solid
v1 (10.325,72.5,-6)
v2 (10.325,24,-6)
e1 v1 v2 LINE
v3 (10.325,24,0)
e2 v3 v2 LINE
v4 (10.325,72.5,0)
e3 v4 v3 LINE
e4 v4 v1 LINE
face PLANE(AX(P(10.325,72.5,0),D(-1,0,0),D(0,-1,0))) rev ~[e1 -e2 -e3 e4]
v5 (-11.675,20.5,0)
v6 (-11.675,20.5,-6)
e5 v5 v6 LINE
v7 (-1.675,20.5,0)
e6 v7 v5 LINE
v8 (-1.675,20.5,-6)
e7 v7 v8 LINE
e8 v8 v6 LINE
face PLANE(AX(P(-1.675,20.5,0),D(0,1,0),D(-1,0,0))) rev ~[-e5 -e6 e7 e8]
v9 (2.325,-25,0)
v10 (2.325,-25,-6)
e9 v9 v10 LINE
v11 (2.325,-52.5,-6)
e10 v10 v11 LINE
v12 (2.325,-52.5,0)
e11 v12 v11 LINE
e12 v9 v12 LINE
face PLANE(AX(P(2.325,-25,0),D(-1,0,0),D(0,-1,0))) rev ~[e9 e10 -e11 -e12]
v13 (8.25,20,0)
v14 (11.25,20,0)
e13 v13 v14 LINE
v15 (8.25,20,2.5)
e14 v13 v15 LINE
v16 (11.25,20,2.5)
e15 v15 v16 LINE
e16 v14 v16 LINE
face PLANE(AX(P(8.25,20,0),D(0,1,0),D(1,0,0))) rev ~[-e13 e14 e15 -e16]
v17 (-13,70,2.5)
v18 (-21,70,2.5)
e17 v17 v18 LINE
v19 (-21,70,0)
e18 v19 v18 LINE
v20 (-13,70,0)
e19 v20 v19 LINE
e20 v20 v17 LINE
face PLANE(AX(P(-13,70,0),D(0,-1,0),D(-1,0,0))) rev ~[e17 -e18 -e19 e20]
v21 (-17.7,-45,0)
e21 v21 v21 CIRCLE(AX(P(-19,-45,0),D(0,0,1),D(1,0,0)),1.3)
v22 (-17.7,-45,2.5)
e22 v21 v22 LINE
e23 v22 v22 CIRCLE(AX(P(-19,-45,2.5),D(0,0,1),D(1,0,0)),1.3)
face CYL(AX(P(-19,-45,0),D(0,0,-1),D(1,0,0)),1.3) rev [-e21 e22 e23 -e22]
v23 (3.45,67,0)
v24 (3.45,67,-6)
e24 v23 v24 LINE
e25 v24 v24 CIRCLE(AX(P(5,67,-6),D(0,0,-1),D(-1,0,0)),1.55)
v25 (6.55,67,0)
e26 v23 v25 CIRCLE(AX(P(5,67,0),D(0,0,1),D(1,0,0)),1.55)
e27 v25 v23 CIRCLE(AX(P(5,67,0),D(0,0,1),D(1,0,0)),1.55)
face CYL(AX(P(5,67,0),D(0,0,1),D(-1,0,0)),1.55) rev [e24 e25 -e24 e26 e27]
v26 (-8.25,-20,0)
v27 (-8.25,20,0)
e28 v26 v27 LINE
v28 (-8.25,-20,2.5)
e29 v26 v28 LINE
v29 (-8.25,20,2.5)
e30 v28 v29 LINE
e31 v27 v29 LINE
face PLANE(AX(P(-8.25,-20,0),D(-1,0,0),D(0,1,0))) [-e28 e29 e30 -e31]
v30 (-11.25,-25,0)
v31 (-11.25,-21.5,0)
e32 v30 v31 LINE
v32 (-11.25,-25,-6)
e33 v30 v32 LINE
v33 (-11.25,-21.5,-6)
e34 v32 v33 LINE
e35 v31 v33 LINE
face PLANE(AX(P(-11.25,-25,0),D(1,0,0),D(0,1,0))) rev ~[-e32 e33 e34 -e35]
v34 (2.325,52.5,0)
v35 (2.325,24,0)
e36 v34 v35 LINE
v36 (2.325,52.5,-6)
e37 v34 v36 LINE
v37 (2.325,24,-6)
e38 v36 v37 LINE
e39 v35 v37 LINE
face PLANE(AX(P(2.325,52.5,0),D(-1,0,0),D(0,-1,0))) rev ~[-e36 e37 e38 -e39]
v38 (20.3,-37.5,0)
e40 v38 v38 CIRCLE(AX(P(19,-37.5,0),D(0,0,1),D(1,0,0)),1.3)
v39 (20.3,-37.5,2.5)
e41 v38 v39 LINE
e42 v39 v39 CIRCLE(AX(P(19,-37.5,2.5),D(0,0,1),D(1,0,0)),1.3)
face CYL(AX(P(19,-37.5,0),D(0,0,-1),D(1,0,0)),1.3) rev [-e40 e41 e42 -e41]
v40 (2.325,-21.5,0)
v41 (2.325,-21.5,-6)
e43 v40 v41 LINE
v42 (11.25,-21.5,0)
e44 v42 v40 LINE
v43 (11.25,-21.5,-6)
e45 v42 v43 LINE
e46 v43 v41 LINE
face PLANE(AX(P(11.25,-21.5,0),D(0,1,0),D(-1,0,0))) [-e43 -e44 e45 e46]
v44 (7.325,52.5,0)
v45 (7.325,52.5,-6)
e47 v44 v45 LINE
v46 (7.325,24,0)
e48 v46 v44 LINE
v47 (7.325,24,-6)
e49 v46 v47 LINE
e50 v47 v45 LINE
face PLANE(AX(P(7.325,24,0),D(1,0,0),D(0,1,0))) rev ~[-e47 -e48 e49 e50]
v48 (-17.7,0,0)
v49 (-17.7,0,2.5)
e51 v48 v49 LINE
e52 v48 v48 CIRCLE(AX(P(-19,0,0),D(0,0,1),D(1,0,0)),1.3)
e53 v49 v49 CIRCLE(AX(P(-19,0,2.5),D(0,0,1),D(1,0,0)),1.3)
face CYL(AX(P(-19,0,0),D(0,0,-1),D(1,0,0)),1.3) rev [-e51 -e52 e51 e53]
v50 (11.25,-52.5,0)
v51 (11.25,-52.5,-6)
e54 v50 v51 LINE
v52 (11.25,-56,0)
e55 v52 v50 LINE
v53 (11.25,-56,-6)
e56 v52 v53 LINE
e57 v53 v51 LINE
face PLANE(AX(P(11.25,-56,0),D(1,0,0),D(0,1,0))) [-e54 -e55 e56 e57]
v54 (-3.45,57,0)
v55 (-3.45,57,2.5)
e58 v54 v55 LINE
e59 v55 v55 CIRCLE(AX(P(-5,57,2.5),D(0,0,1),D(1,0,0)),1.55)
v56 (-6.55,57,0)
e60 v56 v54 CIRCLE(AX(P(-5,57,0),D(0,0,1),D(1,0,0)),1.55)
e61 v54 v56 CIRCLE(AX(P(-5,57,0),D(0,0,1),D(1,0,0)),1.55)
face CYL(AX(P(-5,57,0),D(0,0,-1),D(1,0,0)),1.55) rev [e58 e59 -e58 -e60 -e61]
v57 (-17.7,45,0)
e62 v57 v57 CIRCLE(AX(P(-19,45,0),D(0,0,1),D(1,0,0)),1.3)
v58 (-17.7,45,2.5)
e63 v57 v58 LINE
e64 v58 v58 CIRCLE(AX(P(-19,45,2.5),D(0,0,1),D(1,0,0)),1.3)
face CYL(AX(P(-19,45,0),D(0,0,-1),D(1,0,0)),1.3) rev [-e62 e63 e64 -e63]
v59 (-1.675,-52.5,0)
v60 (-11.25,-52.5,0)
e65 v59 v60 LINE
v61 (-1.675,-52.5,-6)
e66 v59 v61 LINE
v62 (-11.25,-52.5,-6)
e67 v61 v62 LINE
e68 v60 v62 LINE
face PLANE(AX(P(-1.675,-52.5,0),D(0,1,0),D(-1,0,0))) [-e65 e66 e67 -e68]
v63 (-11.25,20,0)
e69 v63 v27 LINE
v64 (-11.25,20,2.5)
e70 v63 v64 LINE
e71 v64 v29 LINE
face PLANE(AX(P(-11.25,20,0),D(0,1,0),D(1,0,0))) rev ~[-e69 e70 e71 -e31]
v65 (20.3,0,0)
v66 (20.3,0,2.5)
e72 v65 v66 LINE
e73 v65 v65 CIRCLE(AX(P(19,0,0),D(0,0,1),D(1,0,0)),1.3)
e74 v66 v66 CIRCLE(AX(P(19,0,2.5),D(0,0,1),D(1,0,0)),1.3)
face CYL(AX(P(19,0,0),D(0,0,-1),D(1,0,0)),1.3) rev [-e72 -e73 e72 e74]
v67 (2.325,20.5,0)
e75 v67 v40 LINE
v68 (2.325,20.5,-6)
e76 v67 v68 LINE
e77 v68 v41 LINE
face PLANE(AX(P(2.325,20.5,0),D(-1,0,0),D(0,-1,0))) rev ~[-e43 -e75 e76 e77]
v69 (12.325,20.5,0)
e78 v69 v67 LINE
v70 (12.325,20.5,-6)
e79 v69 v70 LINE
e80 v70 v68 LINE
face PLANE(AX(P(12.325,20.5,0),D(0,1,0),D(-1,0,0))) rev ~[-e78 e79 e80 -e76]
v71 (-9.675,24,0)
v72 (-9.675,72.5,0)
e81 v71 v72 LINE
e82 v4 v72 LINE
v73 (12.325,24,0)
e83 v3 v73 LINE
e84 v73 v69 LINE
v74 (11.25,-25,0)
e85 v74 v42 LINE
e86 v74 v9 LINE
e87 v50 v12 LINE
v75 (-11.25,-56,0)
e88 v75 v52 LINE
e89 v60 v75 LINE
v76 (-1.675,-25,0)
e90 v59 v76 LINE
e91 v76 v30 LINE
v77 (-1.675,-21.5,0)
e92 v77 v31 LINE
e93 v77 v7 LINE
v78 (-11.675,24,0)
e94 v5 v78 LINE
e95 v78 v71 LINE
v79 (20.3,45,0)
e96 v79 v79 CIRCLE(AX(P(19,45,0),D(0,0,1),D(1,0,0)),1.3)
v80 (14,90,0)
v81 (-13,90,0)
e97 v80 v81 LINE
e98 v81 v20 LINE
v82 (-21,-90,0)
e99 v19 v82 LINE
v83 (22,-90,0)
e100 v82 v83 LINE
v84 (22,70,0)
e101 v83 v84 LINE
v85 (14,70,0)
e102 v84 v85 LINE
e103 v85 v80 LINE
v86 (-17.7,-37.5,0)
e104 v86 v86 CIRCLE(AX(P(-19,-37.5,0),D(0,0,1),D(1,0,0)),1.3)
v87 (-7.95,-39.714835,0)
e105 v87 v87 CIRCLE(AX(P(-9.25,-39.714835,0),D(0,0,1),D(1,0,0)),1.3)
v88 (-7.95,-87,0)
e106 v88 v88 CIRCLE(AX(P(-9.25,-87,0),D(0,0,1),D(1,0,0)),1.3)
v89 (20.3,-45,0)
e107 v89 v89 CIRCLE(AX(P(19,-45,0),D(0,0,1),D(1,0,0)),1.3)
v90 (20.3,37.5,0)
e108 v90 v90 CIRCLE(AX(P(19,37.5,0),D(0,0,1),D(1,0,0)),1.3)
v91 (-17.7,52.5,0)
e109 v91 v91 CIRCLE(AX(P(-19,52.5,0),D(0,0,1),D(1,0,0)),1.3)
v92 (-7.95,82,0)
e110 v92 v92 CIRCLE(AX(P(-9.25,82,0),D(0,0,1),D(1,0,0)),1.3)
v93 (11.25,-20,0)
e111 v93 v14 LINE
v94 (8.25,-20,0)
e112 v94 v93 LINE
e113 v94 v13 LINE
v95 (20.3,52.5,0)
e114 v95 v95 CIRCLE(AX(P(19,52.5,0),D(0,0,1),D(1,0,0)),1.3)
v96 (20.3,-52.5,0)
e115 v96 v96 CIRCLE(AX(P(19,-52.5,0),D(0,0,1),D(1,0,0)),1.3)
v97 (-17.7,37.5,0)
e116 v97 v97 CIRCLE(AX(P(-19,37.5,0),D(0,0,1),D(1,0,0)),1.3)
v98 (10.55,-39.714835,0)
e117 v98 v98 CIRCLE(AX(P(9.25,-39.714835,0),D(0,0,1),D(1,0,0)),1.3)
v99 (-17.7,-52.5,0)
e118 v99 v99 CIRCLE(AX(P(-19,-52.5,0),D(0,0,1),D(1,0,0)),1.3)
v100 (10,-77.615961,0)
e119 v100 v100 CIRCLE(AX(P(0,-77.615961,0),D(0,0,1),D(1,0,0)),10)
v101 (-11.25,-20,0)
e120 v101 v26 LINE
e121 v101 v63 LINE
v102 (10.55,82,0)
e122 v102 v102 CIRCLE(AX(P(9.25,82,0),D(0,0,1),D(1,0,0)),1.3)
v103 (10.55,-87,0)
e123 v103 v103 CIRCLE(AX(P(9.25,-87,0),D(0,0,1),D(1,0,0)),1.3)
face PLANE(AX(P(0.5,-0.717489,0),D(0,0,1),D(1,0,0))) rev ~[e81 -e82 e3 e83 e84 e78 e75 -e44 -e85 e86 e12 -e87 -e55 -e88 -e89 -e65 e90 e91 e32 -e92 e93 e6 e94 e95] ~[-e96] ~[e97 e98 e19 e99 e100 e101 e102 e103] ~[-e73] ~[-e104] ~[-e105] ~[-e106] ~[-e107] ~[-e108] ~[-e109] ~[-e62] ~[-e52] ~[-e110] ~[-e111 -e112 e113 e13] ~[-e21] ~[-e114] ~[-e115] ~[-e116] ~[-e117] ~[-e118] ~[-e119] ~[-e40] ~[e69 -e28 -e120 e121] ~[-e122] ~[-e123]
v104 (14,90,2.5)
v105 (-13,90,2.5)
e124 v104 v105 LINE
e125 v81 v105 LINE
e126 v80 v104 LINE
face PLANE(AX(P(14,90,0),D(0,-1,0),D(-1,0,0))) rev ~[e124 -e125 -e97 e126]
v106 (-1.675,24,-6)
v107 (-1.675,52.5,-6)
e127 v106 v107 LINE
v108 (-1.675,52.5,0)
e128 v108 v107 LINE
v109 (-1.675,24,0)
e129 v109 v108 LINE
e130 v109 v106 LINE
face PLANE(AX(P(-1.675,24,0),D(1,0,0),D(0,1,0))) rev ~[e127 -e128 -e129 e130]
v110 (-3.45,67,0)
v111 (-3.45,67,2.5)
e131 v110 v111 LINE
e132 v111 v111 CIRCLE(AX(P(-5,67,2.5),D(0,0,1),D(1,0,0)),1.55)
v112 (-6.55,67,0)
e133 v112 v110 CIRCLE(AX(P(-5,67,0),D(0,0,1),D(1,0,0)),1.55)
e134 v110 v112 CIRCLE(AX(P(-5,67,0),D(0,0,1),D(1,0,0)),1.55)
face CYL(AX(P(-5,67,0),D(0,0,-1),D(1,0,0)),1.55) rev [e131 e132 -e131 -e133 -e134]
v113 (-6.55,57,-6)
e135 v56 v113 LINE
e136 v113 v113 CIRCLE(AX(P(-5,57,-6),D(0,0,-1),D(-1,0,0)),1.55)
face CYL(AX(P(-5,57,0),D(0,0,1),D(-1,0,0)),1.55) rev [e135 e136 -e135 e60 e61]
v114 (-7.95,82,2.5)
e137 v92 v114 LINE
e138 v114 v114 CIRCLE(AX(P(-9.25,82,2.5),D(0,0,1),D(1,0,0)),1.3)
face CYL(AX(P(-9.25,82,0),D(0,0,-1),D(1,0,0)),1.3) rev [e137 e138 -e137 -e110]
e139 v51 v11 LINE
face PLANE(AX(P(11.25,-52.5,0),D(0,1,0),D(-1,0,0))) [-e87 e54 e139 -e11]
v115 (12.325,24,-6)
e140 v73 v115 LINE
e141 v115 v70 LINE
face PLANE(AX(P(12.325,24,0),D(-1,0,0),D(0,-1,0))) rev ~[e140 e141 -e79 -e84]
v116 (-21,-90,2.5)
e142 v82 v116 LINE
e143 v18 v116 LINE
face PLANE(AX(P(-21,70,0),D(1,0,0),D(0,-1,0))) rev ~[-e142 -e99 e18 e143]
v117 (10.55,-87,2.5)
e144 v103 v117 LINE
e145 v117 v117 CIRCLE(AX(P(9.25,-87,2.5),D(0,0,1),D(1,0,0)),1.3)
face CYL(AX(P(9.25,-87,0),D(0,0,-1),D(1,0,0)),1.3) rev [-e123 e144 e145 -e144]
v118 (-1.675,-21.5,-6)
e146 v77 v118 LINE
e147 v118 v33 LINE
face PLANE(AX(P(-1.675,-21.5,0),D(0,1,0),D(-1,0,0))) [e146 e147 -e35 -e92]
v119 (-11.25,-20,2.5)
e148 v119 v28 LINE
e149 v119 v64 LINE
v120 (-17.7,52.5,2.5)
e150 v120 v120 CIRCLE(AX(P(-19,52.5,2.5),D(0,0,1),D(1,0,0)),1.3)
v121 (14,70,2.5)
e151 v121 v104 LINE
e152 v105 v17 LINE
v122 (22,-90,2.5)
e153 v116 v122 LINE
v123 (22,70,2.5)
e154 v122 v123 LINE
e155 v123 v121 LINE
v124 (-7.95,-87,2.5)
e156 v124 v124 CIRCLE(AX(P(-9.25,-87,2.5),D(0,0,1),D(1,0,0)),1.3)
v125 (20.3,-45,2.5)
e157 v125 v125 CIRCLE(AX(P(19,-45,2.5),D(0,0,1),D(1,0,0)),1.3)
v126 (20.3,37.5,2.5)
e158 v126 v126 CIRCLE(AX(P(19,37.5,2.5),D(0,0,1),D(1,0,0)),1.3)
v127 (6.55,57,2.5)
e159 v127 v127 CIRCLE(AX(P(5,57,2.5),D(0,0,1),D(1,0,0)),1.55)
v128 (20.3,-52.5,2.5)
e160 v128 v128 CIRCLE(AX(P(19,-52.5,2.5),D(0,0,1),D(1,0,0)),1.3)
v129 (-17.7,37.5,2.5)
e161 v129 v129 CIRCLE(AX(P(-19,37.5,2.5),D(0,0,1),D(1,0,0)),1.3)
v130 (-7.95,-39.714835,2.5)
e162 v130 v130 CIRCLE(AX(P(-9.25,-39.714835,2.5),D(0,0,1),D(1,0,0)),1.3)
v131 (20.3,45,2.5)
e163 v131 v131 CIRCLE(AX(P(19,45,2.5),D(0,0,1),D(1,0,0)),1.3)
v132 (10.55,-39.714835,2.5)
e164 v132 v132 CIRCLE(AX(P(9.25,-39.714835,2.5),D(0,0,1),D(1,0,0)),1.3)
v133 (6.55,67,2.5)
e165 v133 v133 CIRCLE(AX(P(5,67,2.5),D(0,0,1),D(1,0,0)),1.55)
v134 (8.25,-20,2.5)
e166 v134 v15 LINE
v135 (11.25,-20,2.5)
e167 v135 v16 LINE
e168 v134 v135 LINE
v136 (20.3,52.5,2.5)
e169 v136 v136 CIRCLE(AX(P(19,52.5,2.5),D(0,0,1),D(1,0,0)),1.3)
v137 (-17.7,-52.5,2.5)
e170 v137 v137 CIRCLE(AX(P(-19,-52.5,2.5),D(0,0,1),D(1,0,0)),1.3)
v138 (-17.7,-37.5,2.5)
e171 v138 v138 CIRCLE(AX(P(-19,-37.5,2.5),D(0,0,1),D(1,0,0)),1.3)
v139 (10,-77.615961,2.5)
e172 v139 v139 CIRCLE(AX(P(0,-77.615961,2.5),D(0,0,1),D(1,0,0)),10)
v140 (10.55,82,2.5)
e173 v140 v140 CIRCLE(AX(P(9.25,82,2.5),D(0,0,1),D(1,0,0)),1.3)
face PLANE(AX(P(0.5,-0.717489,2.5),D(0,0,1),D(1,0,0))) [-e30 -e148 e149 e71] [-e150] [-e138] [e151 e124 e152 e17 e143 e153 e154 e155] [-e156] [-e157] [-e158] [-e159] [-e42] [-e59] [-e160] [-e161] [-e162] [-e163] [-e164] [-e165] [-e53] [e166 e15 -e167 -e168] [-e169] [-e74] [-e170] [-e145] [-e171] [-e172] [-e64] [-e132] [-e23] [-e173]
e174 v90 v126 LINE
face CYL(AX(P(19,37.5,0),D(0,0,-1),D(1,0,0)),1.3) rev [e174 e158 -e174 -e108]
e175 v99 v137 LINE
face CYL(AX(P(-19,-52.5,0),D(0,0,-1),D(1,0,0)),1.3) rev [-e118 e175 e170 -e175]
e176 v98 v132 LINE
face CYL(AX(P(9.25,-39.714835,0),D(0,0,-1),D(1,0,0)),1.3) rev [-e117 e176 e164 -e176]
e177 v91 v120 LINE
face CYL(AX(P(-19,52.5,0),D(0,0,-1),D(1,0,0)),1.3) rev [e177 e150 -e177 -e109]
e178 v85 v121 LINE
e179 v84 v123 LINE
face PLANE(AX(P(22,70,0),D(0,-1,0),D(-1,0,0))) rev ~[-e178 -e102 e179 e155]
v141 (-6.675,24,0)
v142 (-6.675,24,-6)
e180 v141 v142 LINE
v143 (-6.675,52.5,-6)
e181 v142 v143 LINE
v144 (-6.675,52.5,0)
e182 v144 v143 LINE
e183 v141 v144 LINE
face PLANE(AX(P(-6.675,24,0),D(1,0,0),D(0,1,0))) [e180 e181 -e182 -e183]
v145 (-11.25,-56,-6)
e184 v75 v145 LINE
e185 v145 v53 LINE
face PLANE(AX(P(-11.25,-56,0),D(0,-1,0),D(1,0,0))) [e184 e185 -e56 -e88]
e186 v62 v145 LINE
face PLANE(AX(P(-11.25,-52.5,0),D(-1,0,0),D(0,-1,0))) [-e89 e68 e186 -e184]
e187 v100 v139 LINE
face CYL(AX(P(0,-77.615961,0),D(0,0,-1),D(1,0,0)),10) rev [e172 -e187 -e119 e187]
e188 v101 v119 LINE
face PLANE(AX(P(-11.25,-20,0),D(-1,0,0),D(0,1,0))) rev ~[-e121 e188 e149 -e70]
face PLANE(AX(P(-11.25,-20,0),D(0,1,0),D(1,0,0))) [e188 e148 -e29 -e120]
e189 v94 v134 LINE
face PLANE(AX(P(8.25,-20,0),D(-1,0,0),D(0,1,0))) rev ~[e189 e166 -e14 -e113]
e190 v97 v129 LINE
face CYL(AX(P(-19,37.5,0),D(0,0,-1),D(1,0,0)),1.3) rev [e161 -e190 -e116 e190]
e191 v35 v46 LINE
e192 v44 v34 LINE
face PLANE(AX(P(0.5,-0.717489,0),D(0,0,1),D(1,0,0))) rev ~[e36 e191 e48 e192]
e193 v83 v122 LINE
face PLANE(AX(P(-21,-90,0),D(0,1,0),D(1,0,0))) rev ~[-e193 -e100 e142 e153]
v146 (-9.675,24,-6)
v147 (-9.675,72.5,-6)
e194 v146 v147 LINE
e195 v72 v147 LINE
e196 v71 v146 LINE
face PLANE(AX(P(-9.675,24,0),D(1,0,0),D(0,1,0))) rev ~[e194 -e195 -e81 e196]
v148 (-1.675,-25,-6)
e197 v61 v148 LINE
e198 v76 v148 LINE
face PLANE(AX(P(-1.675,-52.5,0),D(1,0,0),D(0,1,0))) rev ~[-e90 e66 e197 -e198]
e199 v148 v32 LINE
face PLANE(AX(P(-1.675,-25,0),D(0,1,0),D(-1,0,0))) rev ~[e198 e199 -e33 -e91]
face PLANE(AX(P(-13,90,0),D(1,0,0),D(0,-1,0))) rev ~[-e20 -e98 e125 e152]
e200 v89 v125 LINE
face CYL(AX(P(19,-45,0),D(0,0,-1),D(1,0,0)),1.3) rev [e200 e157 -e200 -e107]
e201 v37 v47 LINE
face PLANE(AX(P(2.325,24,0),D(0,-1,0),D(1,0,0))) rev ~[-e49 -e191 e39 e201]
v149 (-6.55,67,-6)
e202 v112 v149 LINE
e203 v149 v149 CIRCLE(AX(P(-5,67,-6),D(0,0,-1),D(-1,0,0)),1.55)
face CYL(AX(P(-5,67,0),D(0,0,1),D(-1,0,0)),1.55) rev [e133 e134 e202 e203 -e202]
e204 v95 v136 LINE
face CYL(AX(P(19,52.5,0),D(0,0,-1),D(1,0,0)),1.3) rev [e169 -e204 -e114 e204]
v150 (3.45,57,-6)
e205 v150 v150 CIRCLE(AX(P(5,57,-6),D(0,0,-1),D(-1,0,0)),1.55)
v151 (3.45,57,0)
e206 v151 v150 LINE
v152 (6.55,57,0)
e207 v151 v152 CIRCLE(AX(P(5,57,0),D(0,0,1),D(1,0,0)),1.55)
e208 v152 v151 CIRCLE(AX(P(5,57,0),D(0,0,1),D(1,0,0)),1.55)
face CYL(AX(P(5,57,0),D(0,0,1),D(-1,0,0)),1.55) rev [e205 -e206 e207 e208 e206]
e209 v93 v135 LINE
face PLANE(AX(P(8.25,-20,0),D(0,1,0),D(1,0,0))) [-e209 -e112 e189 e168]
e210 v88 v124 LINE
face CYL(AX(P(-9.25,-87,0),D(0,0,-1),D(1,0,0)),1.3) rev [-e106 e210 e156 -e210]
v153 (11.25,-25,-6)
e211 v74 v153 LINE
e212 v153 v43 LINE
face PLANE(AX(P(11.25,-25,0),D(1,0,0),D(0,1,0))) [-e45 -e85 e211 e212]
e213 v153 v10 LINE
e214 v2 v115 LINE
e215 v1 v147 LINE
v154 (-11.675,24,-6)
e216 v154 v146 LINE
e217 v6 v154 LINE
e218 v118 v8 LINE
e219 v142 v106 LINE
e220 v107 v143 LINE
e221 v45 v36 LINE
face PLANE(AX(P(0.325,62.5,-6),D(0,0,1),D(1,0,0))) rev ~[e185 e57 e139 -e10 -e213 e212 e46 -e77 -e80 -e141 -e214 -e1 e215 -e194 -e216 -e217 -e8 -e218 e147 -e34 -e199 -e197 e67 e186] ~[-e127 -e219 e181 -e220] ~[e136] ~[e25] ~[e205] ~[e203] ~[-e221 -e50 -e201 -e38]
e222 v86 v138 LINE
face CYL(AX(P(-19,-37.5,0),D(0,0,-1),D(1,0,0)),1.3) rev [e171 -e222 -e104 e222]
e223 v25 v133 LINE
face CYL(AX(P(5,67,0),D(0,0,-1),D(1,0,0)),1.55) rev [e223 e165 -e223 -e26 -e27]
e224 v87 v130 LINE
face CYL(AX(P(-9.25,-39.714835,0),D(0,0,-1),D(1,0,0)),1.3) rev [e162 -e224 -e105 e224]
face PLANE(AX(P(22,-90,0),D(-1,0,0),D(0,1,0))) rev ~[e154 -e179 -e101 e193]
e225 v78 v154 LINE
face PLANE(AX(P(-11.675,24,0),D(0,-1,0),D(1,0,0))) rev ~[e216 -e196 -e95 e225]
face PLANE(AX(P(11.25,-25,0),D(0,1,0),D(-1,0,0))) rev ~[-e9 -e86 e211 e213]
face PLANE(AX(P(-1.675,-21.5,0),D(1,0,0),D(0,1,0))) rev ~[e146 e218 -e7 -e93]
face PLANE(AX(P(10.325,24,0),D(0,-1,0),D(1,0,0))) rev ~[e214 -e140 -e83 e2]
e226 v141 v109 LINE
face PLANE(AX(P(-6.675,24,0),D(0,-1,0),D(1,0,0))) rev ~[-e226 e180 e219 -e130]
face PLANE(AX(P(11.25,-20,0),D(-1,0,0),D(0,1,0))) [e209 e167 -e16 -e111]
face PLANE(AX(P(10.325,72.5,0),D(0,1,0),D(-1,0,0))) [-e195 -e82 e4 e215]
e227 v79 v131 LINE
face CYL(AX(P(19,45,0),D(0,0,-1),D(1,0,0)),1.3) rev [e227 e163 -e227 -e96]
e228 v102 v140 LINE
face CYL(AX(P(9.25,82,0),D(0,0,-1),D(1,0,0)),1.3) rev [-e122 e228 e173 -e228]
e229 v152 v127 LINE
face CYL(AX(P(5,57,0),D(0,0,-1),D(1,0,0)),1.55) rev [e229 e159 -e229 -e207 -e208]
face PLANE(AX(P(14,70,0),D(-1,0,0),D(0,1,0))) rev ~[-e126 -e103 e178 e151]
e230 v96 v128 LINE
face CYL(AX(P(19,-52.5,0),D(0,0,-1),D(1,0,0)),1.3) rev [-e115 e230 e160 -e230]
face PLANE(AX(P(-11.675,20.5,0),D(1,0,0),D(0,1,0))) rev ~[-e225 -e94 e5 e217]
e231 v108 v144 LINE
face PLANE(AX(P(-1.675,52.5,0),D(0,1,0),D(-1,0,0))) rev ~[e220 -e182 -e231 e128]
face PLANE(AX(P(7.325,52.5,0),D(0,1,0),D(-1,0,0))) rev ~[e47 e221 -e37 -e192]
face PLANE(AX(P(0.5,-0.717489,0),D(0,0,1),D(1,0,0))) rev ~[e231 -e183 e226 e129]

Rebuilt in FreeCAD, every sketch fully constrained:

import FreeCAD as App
import Part
import Sketcher
Q = App.Units.Quantity

doc = App.newDocument("Part")
body = doc.addObject("PartDesign::Body", "Body")

# Sketch on XY plane
sketch1 = body.newObject("Sketcher::SketchObject", "Sketch")
sketch1.AttachmentSupport = (doc.getObject("XY_Plane"), [""])
sketch1.MapMode = "FlatFace"
sketch1.addGeometry(Part.LineSegment(App.Vector(22, -90, 0), App.Vector(22, 70, 0)), False)
sketch1.addGeometry(Part.LineSegment(App.Vector(22, 70, 0), App.Vector(14, 70, 0)), False)
sketch1.addGeometry(Part.LineSegment(App.Vector(14, 70, 0), App.Vector(14, 90, 0)), False)
sketch1.addGeometry(Part.LineSegment(App.Vector(14, 90, 0), App.Vector(-13, 90, 0)), False)
sketch1.addGeometry(Part.LineSegment(App.Vector(-13, 90, 0), App.Vector(-13, 70, 0)), False)
sketch1.addGeometry(Part.LineSegment(App.Vector(-13, 70, 0), App.Vector(-21, 70, 0)), False)
sketch1.addGeometry(Part.LineSegment(App.Vector(-21, 70, 0), App.Vector(-21, -90, 0)), False)
sketch1.addGeometry(Part.LineSegment(App.Vector(-21, -90, 0), App.Vector(22, -90, 0)), False)
sketch1.addGeometry(Part.Circle(App.Vector(-19, -52.5, 0), App.Vector(0, 0, 1), 1.3), False)
sketch1.addGeometry(Part.Circle(App.Vector(-9.2, -87, 0), App.Vector(0, 0, 1), 1.3), False)
sketch1.addGeometry(Part.Circle(App.Vector(0, -77.6, 0), App.Vector(0, 0, 1), 10), False)
sketch1.addGeometry(Part.Circle(App.Vector(-19, -45, 0), App.Vector(0, 0, 1), 1.3), False)
sketch1.addGeometry(Part.Circle(App.Vector(-19, -37.5, 0), App.Vector(0, 0, 1), 1.3), False)
sketch1.addGeometry(Part.Circle(App.Vector(-9.2, -39.7, 0), App.Vector(0, 0, 1), 1.3), False)
sketch1.addGeometry(Part.Circle(App.Vector(9.2, -87, 0), App.Vector(0, 0, 1), 1.3), False)
sketch1.addGeometry(Part.Circle(App.Vector(19, -52.5, 0), App.Vector(0, 0, 1), 1.3), False)
sketch1.addGeometry(Part.Circle(App.Vector(9.2, -39.7, 0), App.Vector(0, 0, 1), 1.3), False)
sketch1.addGeometry(Part.Circle(App.Vector(19, -45, 0), App.Vector(0, 0, 1), 1.3), False)
sketch1.addGeometry(Part.Circle(App.Vector(19, -37.5, 0), App.Vector(0, 0, 1), 1.3), False)
sketch1.addGeometry(Part.Circle(App.Vector(-19, 0, 0), App.Vector(0, 0, 1), 1.3), False)
sketch1.addGeometry(Part.Circle(App.Vector(-19, 37.5, 0), App.Vector(0, 0, 1), 1.3), False)
sketch1.addGeometry(Part.LineSegment(App.Vector(-8.2, -20, 0), App.Vector(-11.2, -20, 0)), False)
sketch1.addGeometry(Part.LineSegment(App.Vector(-11.2, -20, 0), App.Vector(-11.2, 20, 0)), False)
sketch1.addGeometry(Part.LineSegment(App.Vector(-11.2, 20, 0), App.Vector(-8.2, 20, 0)), False)
sketch1.addGeometry(Part.LineSegment(App.Vector(-8.2, 20, 0), App.Vector(-8.2, -20, 0)), False)
sketch1.addGeometry(Part.Circle(App.Vector(-19, 45, 0), App.Vector(0, 0, 1), 1.3), False)
sketch1.addGeometry(Part.Circle(App.Vector(-19, 52.5, 0), App.Vector(0, 0, 1), 1.3), False)
sketch1.addGeometry(Part.Circle(App.Vector(-5, 57, 0), App.Vector(0, 0, 1), 1.6), False)
sketch1.addGeometry(Part.Circle(App.Vector(-9.2, 82, 0), App.Vector(0, 0, 1), 1.3), False)
sketch1.addGeometry(Part.Circle(App.Vector(-5, 67, 0), App.Vector(0, 0, 1), 1.6), False)
sketch1.addGeometry(Part.LineSegment(App.Vector(11.2, -20, 0), App.Vector(8.2, -20, 0)), False)
sketch1.addGeometry(Part.LineSegment(App.Vector(8.2, -20, 0), App.Vector(8.2, 20, 0)), False)
sketch1.addGeometry(Part.LineSegment(App.Vector(8.2, 20, 0), App.Vector(11.2, 20, 0)), False)
sketch1.addGeometry(Part.LineSegment(App.Vector(11.2, 20, 0), App.Vector(11.2, -20, 0)), False)
sketch1.addGeometry(Part.Circle(App.Vector(19, 0, 0), App.Vector(0, 0, 1), 1.3), False)
sketch1.addGeometry(Part.Circle(App.Vector(19, 37.5, 0), App.Vector(0, 0, 1), 1.3), False)
sketch1.addGeometry(Part.Circle(App.Vector(5, 57, 0), App.Vector(0, 0, 1), 1.6), False)
sketch1.addGeometry(Part.Circle(App.Vector(5, 67, 0), App.Vector(0, 0, 1), 1.6), False)
sketch1.addGeometry(Part.Circle(App.Vector(9.2, 82, 0), App.Vector(0, 0, 1), 1.3), False)
sketch1.addGeometry(Part.Circle(App.Vector(19, 45, 0), App.Vector(0, 0, 1), 1.3), False)
sketch1.addGeometry(Part.Circle(App.Vector(19, 52.5, 0), App.Vector(0, 0, 1), 1.3), False)
sketch1.addConstraint(Sketcher.Constraint("Coincident", 0, 2, 1, 1))
sketch1.addConstraint(Sketcher.Constraint("Coincident", 1, 2, 2, 1))
sketch1.addConstraint(Sketcher.Constraint("Coincident", 2, 2, 3, 1))
sketch1.addConstraint(Sketcher.Constraint("Coincident", 3, 2, 4, 1))
sketch1.addConstraint(Sketcher.Constraint("Coincident", 4, 2, 5, 1))
sketch1.addConstraint(Sketcher.Constraint("Coincident", 5, 2, 6, 1))
sketch1.addConstraint(Sketcher.Constraint("Coincident", 6, 2, 7, 1))
sketch1.addConstraint(Sketcher.Constraint("Coincident", 7, 2, 0, 1))
sketch1.addConstraint(Sketcher.Constraint("Coincident", 21, 2, 22, 1))
sketch1.addConstraint(Sketcher.Constraint("Coincident", 22, 2, 23, 1))
sketch1.addConstraint(Sketcher.Constraint("Coincident", 23, 2, 24, 1))
sketch1.addConstraint(Sketcher.Constraint("Coincident", 24, 2, 21, 1))
sketch1.addConstraint(Sketcher.Constraint("Coincident", 30, 2, 31, 1))
sketch1.addConstraint(Sketcher.Constraint("Coincident", 31, 2, 32, 1))
sketch1.addConstraint(Sketcher.Constraint("Coincident", 32, 2, 33, 1))
sketch1.addConstraint(Sketcher.Constraint("Coincident", 33, 2, 30, 1))
sketch1.addConstraint(Sketcher.Constraint("Vertical", 0))
sketch1.addConstraint(Sketcher.Constraint("Horizontal", 1))
sketch1.addConstraint(Sketcher.Constraint("Vertical", 2))
sketch1.addConstraint(Sketcher.Constraint("Horizontal", 3))
sketch1.addConstraint(Sketcher.Constraint("Vertical", 4))
sketch1.addConstraint(Sketcher.Constraint("Horizontal", 5))
sketch1.addConstraint(Sketcher.Constraint("Vertical", 6))
sketch1.addConstraint(Sketcher.Constraint("Horizontal", 7))
sketch1.addConstraint(Sketcher.Constraint("Horizontal", 21))
sketch1.addConstraint(Sketcher.Constraint("Vertical", 22))
sketch1.addConstraint(Sketcher.Constraint("Horizontal", 23))
sketch1.addConstraint(Sketcher.Constraint("Vertical", 24))
sketch1.addConstraint(Sketcher.Constraint("Horizontal", 30))
sketch1.addConstraint(Sketcher.Constraint("Vertical", 31))
sketch1.addConstraint(Sketcher.Constraint("Horizontal", 32))
sketch1.addConstraint(Sketcher.Constraint("Vertical", 33))
sketch1.addConstraint(Sketcher.Constraint("Equal", 8, 9))
sketch1.addConstraint(Sketcher.Constraint("Equal", 9, 11))
sketch1.addConstraint(Sketcher.Constraint("Equal", 11, 12))
sketch1.addConstraint(Sketcher.Constraint("Equal", 12, 13))
sketch1.addConstraint(Sketcher.Constraint("Equal", 13, 14))
sketch1.addConstraint(Sketcher.Constraint("Equal", 14, 15))
sketch1.addConstraint(Sketcher.Constraint("Equal", 15, 16))
sketch1.addConstraint(Sketcher.Constraint("Equal", 16, 17))
sketch1.addConstraint(Sketcher.Constraint("Equal", 17, 18))
sketch1.addConstraint(Sketcher.Constraint("Equal", 18, 19))
sketch1.addConstraint(Sketcher.Constraint("Equal", 19, 20))
sketch1.addConstraint(Sketcher.Constraint("Equal", 20, 25))
sketch1.addConstraint(Sketcher.Constraint("Equal", 25, 26))
sketch1.addConstraint(Sketcher.Constraint("Equal", 26, 28))
sketch1.addConstraint(Sketcher.Constraint("Equal", 27, 29))
sketch1.addConstraint(Sketcher.Constraint("Equal", 28, 34))
sketch1.addConstraint(Sketcher.Constraint("Equal", 34, 35))
sketch1.addConstraint(Sketcher.Constraint("Equal", 29, 36))
sketch1.addConstraint(Sketcher.Constraint("Equal", 36, 37))
sketch1.addConstraint(Sketcher.Constraint("Equal", 35, 38))
sketch1.addConstraint(Sketcher.Constraint("Equal", 38, 39))
sketch1.addConstraint(Sketcher.Constraint("Equal", 39, 40))
sketch1.addConstraint(Sketcher.Constraint("Symmetric", 18, 3, 20, 3, -1, 1))
sketch1.addConstraint(Sketcher.Constraint("Symmetric", 17, 3, 25, 3, -1, 1))
sketch1.addConstraint(Sketcher.Constraint("Symmetric", 15, 3, 26, 3, -1, 1))
sketch1.addConstraint(Sketcher.Constraint("Symmetric", 19, 3, 34, 3, -1, 1))
sketch1.addConstraint(Sketcher.Constraint("Symmetric", 12, 3, 35, 3, -1, 1))
sketch1.addConstraint(Sketcher.Constraint("Symmetric", 11, 3, 39, 3, -1, 1))
sketch1.addConstraint(Sketcher.Constraint("Symmetric", 8, 3, 40, 3, -1, 1))
sketch1.addConstraint(Sketcher.Constraint("Symmetric", 23, 2, 30, 2, -1, 1))
sketch1.addConstraint(Sketcher.Constraint("Symmetric", 21, 2, 32, 2, -1, 1))
sketch1.addConstraint(Sketcher.Constraint("Symmetric", 9, 3, 14, 3, -2))
sketch1.addConstraint(Sketcher.Constraint("Symmetric", 8, 3, 15, 3, -2))
sketch1.addConstraint(Sketcher.Constraint("Symmetric", 13, 3, 16, 3, -2))
sketch1.addConstraint(Sketcher.Constraint("Symmetric", 11, 3, 17, 3, -2))
sketch1.addConstraint(Sketcher.Constraint("Symmetric", 12, 3, 18, 3, -2))
sketch1.addConstraint(Sketcher.Constraint("Symmetric", 27, 3, 36, 3, -2))
sketch1.addConstraint(Sketcher.Constraint("Symmetric", 29, 3, 37, 3, -2))
sketch1.addConstraint(Sketcher.Constraint("Symmetric", 28, 3, 38, 3, -2))
sketch1.addConstraint(Sketcher.Constraint("PointOnObject", 10, 3, -2))
sketch1.addConstraint(Sketcher.Constraint("PointOnObject", 19, 3, -1))
sketch1.addConstraint(Sketcher.Constraint("Horizontal", 1, 2, 4, 2))
sketch1.addConstraint(Sketcher.Constraint("Horizontal", 24, 2, 30, 2))
sketch1.addConstraint(Sketcher.Constraint("Vertical", 8, 3, 11, 3))
sketch1.addConstraint(Sketcher.Constraint("Vertical", 11, 3, 12, 3))
sketch1.addConstraint(Sketcher.Constraint("Vertical", 9, 3, 13, 3))
sketch1.addConstraint(Sketcher.Constraint("Vertical", 12, 3, 19, 3))
sketch1.addConstraint(Sketcher.Constraint("Vertical", 13, 3, 28, 3))
sketch1.addConstraint(Sketcher.Constraint("Vertical", 27, 3, 29, 3))
sketch1.addConstraint(Sketcher.Constraint("Equal", 1, 5))
sketch1.addConstraint(Sketcher.Constraint("Diameter", 10, Q("20 mm")))
sketch1.addConstraint(Sketcher.Constraint("Diameter", 8, Q("2.6 mm")))
sketch1.addConstraint(Sketcher.Constraint("Diameter", 27, Q("3.1 mm")))
sketch1.addConstraint(Sketcher.Constraint("DistanceX", 1, 2, 1, 1, Q("8 mm")))
sketch1.addConstraint(Sketcher.Constraint("DistanceX", 3, 2, 3, 1, Q("27 mm")))
sketch1.addConstraint(Sketcher.Constraint("DistanceX", 21, 2, 21, 1, Q("3 mm")))
sketch1.addConstraint(Sketcher.Constraint("DistanceY", 0, 1, 0, 2, Q("160 mm")))
sketch1.addConstraint(Sketcher.Constraint("DistanceY", 2, 1, 2, 2, Q("20 mm")))
sketch1.addConstraint(Sketcher.Constraint("DistanceY", 22, 1, 22, 2, Q("40 mm")))
sketch1.addConstraint(Sketcher.Constraint("DistanceX", 8, 3, -1, 1, Q("19 mm")))
sketch1.addConstraint(Sketcher.Constraint("DistanceY", 9, 3, -1, 1, Q("87 mm")))
sketch1.addConstraint(Sketcher.Constraint("DistanceY", 11, 3, -1, 1, Q("45 mm")))
sketch1.addConstraint(Sketcher.Constraint("DistanceX", 27, 3, -1, 1, Q("5 mm")))
sketch1.addConstraint(Sketcher.Constraint("DistanceY", -1, 1, 27, 3, Q("57 mm")))
sketch1.addConstraint(Sketcher.Constraint("DistanceY", -1, 1, 28, 3, Q("82 mm")))
sketch1.addConstraint(Sketcher.Constraint("DistanceY", -1, 1, 29, 3, Q("67 mm")))
sketch1.addConstraint(Sketcher.Constraint("DistanceX", -1, 1, 0, 2, Q("22 mm")))
sketch1.addConstraint(Sketcher.Constraint("DistanceY", -1, 1, 0, 2, Q("70 mm")))
sketch1.addConstraint(Sketcher.Constraint("DistanceY", 8, 3, 12, 3, Q("15 mm")))
sketch1.addConstraint(Sketcher.Constraint("DistanceY", 12, 3, 20, 3, Q("75 mm")))
sketch1.addConstraint(Sketcher.Constraint("DistanceX", 21, 2, 13, 3, Q("2 mm")))
sketch1.addConstraint(Sketcher.Constraint("DistanceX", 9, 3, 14, 3, Q("18.5 mm")))
sketch1.addConstraint(Sketcher.Constraint("DistanceY", 10, 3, -1, 1, Q("77.615961 mm")))
sketch1.addConstraint(Sketcher.Constraint("DistanceY", 13, 3, -1, 1, Q("39.714835 mm")))
pad1 = body.newObject("PartDesign::Pad", "Pad")
pad1.Profile = sketch1
pad1.Length = 2.5

# Sketch on XY plane
sketch2 = body.newObject("Sketcher::SketchObject", "Sketch001")
sketch2.AttachmentSupport = (doc.getObject("XY_Plane"), [""])
sketch2.MapMode = "FlatFace"
sketch2.addGeometry(Part.LineSegment(App.Vector(-9.7, 24, 0), App.Vector(-9.7, 72.5, 0)), False)
sketch2.addGeometry(Part.LineSegment(App.Vector(-9.7, 72.5, 0), App.Vector(10.3, 72.5, 0)), False)
sketch2.addGeometry(Part.LineSegment(App.Vector(10.3, 72.5, 0), App.Vector(10.3, 24, 0)), False)
sketch2.addGeometry(Part.LineSegment(App.Vector(10.3, 24, 0), App.Vector(12.3, 24, 0)), False)
sketch2.addGeometry(Part.LineSegment(App.Vector(12.3, 24, 0), App.Vector(12.3, 20.5, 0)), False)
sketch2.addGeometry(Part.LineSegment(App.Vector(12.3, 20.5, 0), App.Vector(2.3, 20.5, 0)), False)
sketch2.addGeometry(Part.LineSegment(App.Vector(2.3, 20.5, 0), App.Vector(2.3, -21.5, 0)), False)
sketch2.addGeometry(Part.LineSegment(App.Vector(2.3, -21.5, 0), App.Vector(11.2, -21.5, 0)), False)
sketch2.addGeometry(Part.LineSegment(App.Vector(11.2, -21.5, 0), App.Vector(11.2, -25, 0)), False)
sketch2.addGeometry(Part.LineSegment(App.Vector(11.2, -25, 0), App.Vector(2.3, -25, 0)), False)
sketch2.addGeometry(Part.LineSegment(App.Vector(2.3, -25, 0), App.Vector(2.3, -52.5, 0)), False)
sketch2.addGeometry(Part.LineSegment(App.Vector(2.3, -52.5, 0), App.Vector(11.2, -52.5, 0)), False)
sketch2.addGeometry(Part.LineSegment(App.Vector(11.2, -52.5, 0), App.Vector(11.2, -56, 0)), False)
sketch2.addGeometry(Part.LineSegment(App.Vector(11.2, -56, 0), App.Vector(-11.2, -56, 0)), False)
sketch2.addGeometry(Part.LineSegment(App.Vector(-11.2, -56, 0), App.Vector(-11.2, -52.5, 0)), False)
sketch2.addGeometry(Part.LineSegment(App.Vector(-11.2, -52.5, 0), App.Vector(-1.7, -52.5, 0)), False)
sketch2.addGeometry(Part.LineSegment(App.Vector(-1.7, -52.5, 0), App.Vector(-1.7, -25, 0)), False)
sketch2.addGeometry(Part.LineSegment(App.Vector(-1.7, -25, 0), App.Vector(-11.2, -25, 0)), False)
sketch2.addGeometry(Part.LineSegment(App.Vector(-11.2, -25, 0), App.Vector(-11.2, -21.5, 0)), False)
sketch2.addGeometry(Part.LineSegment(App.Vector(-11.2, -21.5, 0), App.Vector(-1.7, -21.5, 0)), False)
sketch2.addGeometry(Part.LineSegment(App.Vector(-1.7, -21.5, 0), App.Vector(-1.7, 20.5, 0)), False)
sketch2.addGeometry(Part.LineSegment(App.Vector(-1.7, 20.5, 0), App.Vector(-11.7, 20.5, 0)), False)
sketch2.addGeometry(Part.LineSegment(App.Vector(-11.7, 20.5, 0), App.Vector(-11.7, 24, 0)), False)
sketch2.addGeometry(Part.LineSegment(App.Vector(-11.7, 24, 0), App.Vector(-9.7, 24, 0)), False)
sketch2.addGeometry(Part.LineSegment(App.Vector(-6.7, 52.5, 0), App.Vector(-6.7, 24, 0)), False)
sketch2.addGeometry(Part.LineSegment(App.Vector(-6.7, 24, 0), App.Vector(-1.7, 24, 0)), False)
sketch2.addGeometry(Part.LineSegment(App.Vector(-1.7, 24, 0), App.Vector(-1.7, 52.5, 0)), False)
sketch2.addGeometry(Part.LineSegment(App.Vector(-1.7, 52.5, 0), App.Vector(-6.7, 52.5, 0)), False)
sketch2.addGeometry(Part.LineSegment(App.Vector(2.3, 52.5, 0), App.Vector(2.3, 24, 0)), False)
sketch2.addGeometry(Part.LineSegment(App.Vector(2.3, 24, 0), App.Vector(7.3, 24, 0)), False)
sketch2.addGeometry(Part.LineSegment(App.Vector(7.3, 24, 0), App.Vector(7.3, 52.5, 0)), False)
sketch2.addGeometry(Part.LineSegment(App.Vector(7.3, 52.5, 0), App.Vector(2.3, 52.5, 0)), False)
sketch2.addGeometry(Part.Circle(App.Vector(-5, 57, 0), App.Vector(0, 0, 1), 1.6), False)
sketch2.addGeometry(Part.Circle(App.Vector(5, 57, 0), App.Vector(0, 0, 1), 1.6), False)
sketch2.addGeometry(Part.Circle(App.Vector(-5, 67, 0), App.Vector(0, 0, 1), 1.6), False)
sketch2.addGeometry(Part.Circle(App.Vector(5, 67, 0), App.Vector(0, 0, 1), 1.6), False)
sketch2.addConstraint(Sketcher.Constraint("Coincident", 0, 2, 1, 1))
sketch2.addConstraint(Sketcher.Constraint("Coincident", 1, 2, 2, 1))
sketch2.addConstraint(Sketcher.Constraint("Coincident", 2, 2, 3, 1))
sketch2.addConstraint(Sketcher.Constraint("Coincident", 3, 2, 4, 1))
sketch2.addConstraint(Sketcher.Constraint("Coincident", 4, 2, 5, 1))
sketch2.addConstraint(Sketcher.Constraint("Coincident", 5, 2, 6, 1))
sketch2.addConstraint(Sketcher.Constraint("Coincident", 6, 2, 7, 1))
sketch2.addConstraint(Sketcher.Constraint("Coincident", 7, 2, 8, 1))
sketch2.addConstraint(Sketcher.Constraint("Coincident", 8, 2, 9, 1))
sketch2.addConstraint(Sketcher.Constraint("Coincident", 9, 2, 10, 1))
sketch2.addConstraint(Sketcher.Constraint("Coincident", 10, 2, 11, 1))
sketch2.addConstraint(Sketcher.Constraint("Coincident", 11, 2, 12, 1))
sketch2.addConstraint(Sketcher.Constraint("Coincident", 12, 2, 13, 1))
sketch2.addConstraint(Sketcher.Constraint("Coincident", 13, 2, 14, 1))
sketch2.addConstraint(Sketcher.Constraint("Coincident", 14, 2, 15, 1))
sketch2.addConstraint(Sketcher.Constraint("Coincident", 15, 2, 16, 1))
sketch2.addConstraint(Sketcher.Constraint("Coincident", 16, 2, 17, 1))
sketch2.addConstraint(Sketcher.Constraint("Coincident", 17, 2, 18, 1))
sketch2.addConstraint(Sketcher.Constraint("Coincident", 18, 2, 19, 1))
sketch2.addConstraint(Sketcher.Constraint("Coincident", 19, 2, 20, 1))
sketch2.addConstraint(Sketcher.Constraint("Coincident", 20, 2, 21, 1))
sketch2.addConstraint(Sketcher.Constraint("Coincident", 21, 2, 22, 1))
sketch2.addConstraint(Sketcher.Constraint("Coincident", 22, 2, 23, 1))
sketch2.addConstraint(Sketcher.Constraint("Coincident", 23, 2, 0, 1))
sketch2.addConstraint(Sketcher.Constraint("Coincident", 24, 2, 25, 1))
sketch2.addConstraint(Sketcher.Constraint("Coincident", 25, 2, 26, 1))
sketch2.addConstraint(Sketcher.Constraint("Coincident", 26, 2, 27, 1))
sketch2.addConstraint(Sketcher.Constraint("Coincident", 27, 2, 24, 1))
sketch2.addConstraint(Sketcher.Constraint("Coincident", 28, 2, 29, 1))
sketch2.addConstraint(Sketcher.Constraint("Coincident", 29, 2, 30, 1))
sketch2.addConstraint(Sketcher.Constraint("Coincident", 30, 2, 31, 1))
sketch2.addConstraint(Sketcher.Constraint("Coincident", 31, 2, 28, 1))
sketch2.addConstraint(Sketcher.Constraint("Vertical", 0))
sketch2.addConstraint(Sketcher.Constraint("Horizontal", 1))
sketch2.addConstraint(Sketcher.Constraint("Vertical", 2))
sketch2.addConstraint(Sketcher.Constraint("Horizontal", 3))
sketch2.addConstraint(Sketcher.Constraint("Vertical", 4))
sketch2.addConstraint(Sketcher.Constraint("Horizontal", 5))
sketch2.addConstraint(Sketcher.Constraint("Vertical", 6))
sketch2.addConstraint(Sketcher.Constraint("Horizontal", 7))
sketch2.addConstraint(Sketcher.Constraint("Vertical", 8))
sketch2.addConstraint(Sketcher.Constraint("Horizontal", 9))
sketch2.addConstraint(Sketcher.Constraint("Vertical", 10))
sketch2.addConstraint(Sketcher.Constraint("Horizontal", 11))
sketch2.addConstraint(Sketcher.Constraint("Vertical", 12))
sketch2.addConstraint(Sketcher.Constraint("Horizontal", 13))
sketch2.addConstraint(Sketcher.Constraint("Vertical", 14))
sketch2.addConstraint(Sketcher.Constraint("Horizontal", 15))
sketch2.addConstraint(Sketcher.Constraint("Vertical", 16))
sketch2.addConstraint(Sketcher.Constraint("Horizontal", 17))
sketch2.addConstraint(Sketcher.Constraint("Vertical", 18))
sketch2.addConstraint(Sketcher.Constraint("Horizontal", 19))
sketch2.addConstraint(Sketcher.Constraint("Vertical", 20))
sketch2.addConstraint(Sketcher.Constraint("Horizontal", 21))
sketch2.addConstraint(Sketcher.Constraint("Vertical", 22))
sketch2.addConstraint(Sketcher.Constraint("Horizontal", 23))
sketch2.addConstraint(Sketcher.Constraint("Vertical", 24))
sketch2.addConstraint(Sketcher.Constraint("Horizontal", 25))
sketch2.addConstraint(Sketcher.Constraint("Vertical", 26))
sketch2.addConstraint(Sketcher.Constraint("Horizontal", 27))
sketch2.addConstraint(Sketcher.Constraint("Vertical", 28))
sketch2.addConstraint(Sketcher.Constraint("Horizontal", 29))
sketch2.addConstraint(Sketcher.Constraint("Vertical", 30))
sketch2.addConstraint(Sketcher.Constraint("Horizontal", 31))
sketch2.addConstraint(Sketcher.Constraint("Equal", 32, 33))
sketch2.addConstraint(Sketcher.Constraint("Equal", 33, 34))
sketch2.addConstraint(Sketcher.Constraint("Equal", 34, 35))
sketch2.addConstraint(Sketcher.Constraint("Symmetric", 32, 3, 33, 3, -2))
sketch2.addConstraint(Sketcher.Constraint("Symmetric", 34, 3, 35, 3, -2))
sketch2.addConstraint(Sketcher.Constraint("Symmetric", 11, 2, 14, 2, -2))
sketch2.addConstraint(Sketcher.Constraint("Symmetric", 8, 2, 17, 2, -2))
sketch2.addConstraint(Sketcher.Constraint("Symmetric", 15, 2, 26, 2, -1))
sketch2.addConstraint(Sketcher.Constraint("Symmetric", 10, 2, 31, 2, -1))
sketch2.addConstraint(Sketcher.Constraint("Horizontal", 7, 2, 18, 2))
sketch2.addConstraint(Sketcher.Constraint("Horizontal", 5, 2, 20, 2))
sketch2.addConstraint(Sketcher.Constraint("Horizontal", 3, 2, 22, 2))
sketch2.addConstraint(Sketcher.Constraint("Horizontal", 23, 2, 24, 2))
sketch2.addConstraint(Sketcher.Constraint("Horizontal", 25, 2, 28, 2))
sketch2.addConstraint(Sketcher.Constraint("Vertical", 32, 3, 34, 3))
sketch2.addConstraint(Sketcher.Constraint("Vertical", 6, 2, 9, 2))
sketch2.addConstraint(Sketcher.Constraint("Vertical", 8, 2, 11, 2))
sketch2.addConstraint(Sketcher.Constraint("Vertical", 16, 2, 19, 2))
sketch2.addConstraint(Sketcher.Constraint("Equal", 5, 21))
sketch2.addConstraint(Sketcher.Constraint("Equal", 3, 23))
sketch2.addConstraint(Sketcher.Constraint("Equal", 27, 29))
sketch2.addConstraint(Sketcher.Constraint("Equal", 4, 8))
sketch2.addConstraint(Sketcher.Constraint("Equal", 8, 12))
sketch2.addConstraint(Sketcher.Constraint("Diameter", 32, Q("3.1 mm")))
sketch2.addConstraint(Sketcher.Constraint("DistanceX", 1, 1, 1, 2, Q("20 mm")))
sketch2.addConstraint(Sketcher.Constraint("DistanceX", 3, 1, 3, 2, Q("2 mm")))
sketch2.addConstraint(Sketcher.Constraint("DistanceX", 5, 2, 5, 1, Q("10 mm")))
sketch2.addConstraint(Sketcher.Constraint("DistanceX", 25, 1, 25, 2, Q("5 mm")))
sketch2.addConstraint(Sketcher.Constraint("DistanceY", 6, 2, 6, 1, Q("42 mm")))
sketch2.addConstraint(Sketcher.Constraint("DistanceX", 13, 2, 13, 1, Q("22.5 mm")))
sketch2.addConstraint(Sketcher.Constraint("DistanceY", 0, 1, 0, 2, Q("48.5 mm")))
sketch2.addConstraint(Sketcher.Constraint("DistanceY", 4, 2, 4, 1, Q("3.5 mm")))
sketch2.addConstraint(Sketcher.Constraint("DistanceY", 10, 2, 10, 1, Q("27.5 mm")))
sketch2.addConstraint(Sketcher.Constraint("DistanceY", 24, 2, 24, 1, Q("28.5 mm")))
sketch2.addConstraint(Sketcher.Constraint("DistanceX", 32, 3, -1, 1, Q("5 mm")))
sketch2.addConstraint(Sketcher.Constraint("DistanceY", -1, 1, 32, 3, Q("57 mm")))
sketch2.addConstraint(Sketcher.Constraint("DistanceY", -1, 1, 34, 3, Q("67 mm")))
sketch2.addConstraint(Sketcher.Constraint("DistanceX", 7, 1, 7, 2, Q("8.925 mm")))
pad2 = body.newObject("PartDesign::Pad", "Pad001")
pad2.Profile = sketch2
pad2.Length = 6
pad2.Reversed = True

doc.recompute()
